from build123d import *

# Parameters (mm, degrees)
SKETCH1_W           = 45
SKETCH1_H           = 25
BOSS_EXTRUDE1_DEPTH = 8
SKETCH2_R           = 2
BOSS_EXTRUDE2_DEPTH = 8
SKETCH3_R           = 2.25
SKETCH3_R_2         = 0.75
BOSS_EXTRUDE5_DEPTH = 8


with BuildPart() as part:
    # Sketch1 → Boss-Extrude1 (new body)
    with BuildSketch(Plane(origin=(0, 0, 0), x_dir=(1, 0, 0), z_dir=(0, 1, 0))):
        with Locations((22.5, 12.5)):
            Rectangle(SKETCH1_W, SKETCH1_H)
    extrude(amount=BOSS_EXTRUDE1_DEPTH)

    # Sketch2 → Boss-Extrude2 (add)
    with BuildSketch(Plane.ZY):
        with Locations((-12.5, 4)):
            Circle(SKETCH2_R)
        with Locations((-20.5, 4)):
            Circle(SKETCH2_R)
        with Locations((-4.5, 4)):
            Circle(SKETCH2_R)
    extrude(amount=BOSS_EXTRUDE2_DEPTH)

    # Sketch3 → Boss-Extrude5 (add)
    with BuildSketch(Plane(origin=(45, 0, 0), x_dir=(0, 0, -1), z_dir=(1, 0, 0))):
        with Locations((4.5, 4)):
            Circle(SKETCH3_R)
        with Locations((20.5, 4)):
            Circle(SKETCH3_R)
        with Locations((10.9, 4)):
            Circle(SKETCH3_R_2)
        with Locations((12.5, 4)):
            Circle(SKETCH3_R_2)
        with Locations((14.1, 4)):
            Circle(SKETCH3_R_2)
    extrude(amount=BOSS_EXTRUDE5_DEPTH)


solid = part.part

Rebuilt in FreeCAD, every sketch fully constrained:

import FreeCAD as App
import Part
import Sketcher
from FreeCAD import Vector


def add_polygon(sketch, points):
    """Adds a closed chain of lines whose ends are joined by coincident constraints."""
    first, n = sketch.GeometryCount, len(points)
    for a, b in zip(points, points[1:] + points[:1]):
        sketch.addGeometry(Part.LineSegment(App.Vector(*a, 0), App.Vector(*b, 0)), False)
    for i in range(n):
        sketch.addConstraint(Sketcher.Constraint("Coincident", first + i, 2, first + (i + 1) % n, 1))

doc = App.newDocument("Part")
body = doc.addObject("PartDesign::Body", "Body")

# Sketch on XZ plane
sketch1 = body.newObject("Sketcher::SketchObject", "Sketch")
sketch1.AttachmentSupport = (doc.getObject("XZ_Plane"), [""])
sketch1.MapMode = "FlatFace"
add_polygon(sketch1, [(0, -25), (0, 0), (45, 0), (45, -25)])  # lines 0-3
sketch1.addConstraint(Sketcher.Constraint("Vertical", 0))
sketch1.addConstraint(Sketcher.Constraint("Horizontal", 1))
sketch1.addConstraint(Sketcher.Constraint("Vertical", 2))
sketch1.addConstraint(Sketcher.Constraint("Horizontal", 3))
sketch1.addConstraint(Sketcher.Constraint("Coincident", 0, 2, -1, 1))
sketch1.addConstraint(Sketcher.Constraint("DistanceX", 1, 1, 1, 2, 45.0))
sketch1.addConstraint(Sketcher.Constraint("DistanceY", 0, 1, 0, 2, 25.0))
pad1 = body.newObject("PartDesign::Pad", "Pad")
pad1.Profile = sketch1
pad1.Length = 8
pad1.Reversed = True

# Sketch on YZ plane
sketch2 = body.newObject("Sketcher::SketchObject", "Sketch001")
sketch2.AttachmentSupport = (doc.getObject("YZ_Plane"), [""])
sketch2.MapMode = "FlatFace"
sketch2.addGeometry(Part.Circle(Vector(4, -12.5, 0), Vector(0, 0, 1), 2), False)
sketch2.addGeometry(Part.Circle(Vector(4, -20.5, 0), Vector(0, 0, 1), 2), False)
sketch2.addGeometry(Part.Circle(Vector(4, -4.5, 0), Vector(0, 0, 1), 2), False)
sketch2.addConstraint(Sketcher.Constraint("Equal", 0, 1))
sketch2.addConstraint(Sketcher.Constraint("Equal", 1, 2))
sketch2.addConstraint(Sketcher.Constraint("Vertical", 0, 3, 1, 3))
sketch2.addConstraint(Sketcher.Constraint("Vertical", 1, 3, 2, 3))
sketch2.addConstraint(Sketcher.Constraint("Diameter", 0, 4.0))
sketch2.addConstraint(Sketcher.Constraint("DistanceX", -1, 1, 0, 3, 4.0))
sketch2.addConstraint(Sketcher.Constraint("DistanceY", 1, 3, 0, 3, 8.0))
sketch2.addConstraint(Sketcher.Constraint("DistanceY", 0, 3, 2, 3, 8.0))
sketch2.addConstraint(Sketcher.Constraint("DistanceY", 0, 3, -1, 1, 12.5))
pad2 = body.newObject("PartDesign::Pad", "Pad001")
pad2.Profile = sketch2
pad2.Length = 8
pad2.Reversed = True

# Sketch on YZ plane
sketch3 = body.newObject("Sketcher::SketchObject", "Sketch002")
sketch3.AttachmentSupport = (doc.getObject("YZ_Plane"), [""])
sketch3.MapMode = "FlatFace"
sketch3.AttachmentOffset = App.Placement(Vector(0, 0, 45), App.Rotation())
sketch3.addGeometry(Part.Circle(Vector(4, -4.5, 0), Vector(0, 0, 1), 2.25), False)
sketch3.addGeometry(Part.Circle(Vector(4, -20.5, 0), Vector(0, 0, 1), 2.25), False)
sketch3.addGeometry(Part.Circle(Vector(4, -10.9, 0), Vector(0, 0, 1), 0.75), False)
sketch3.addGeometry(Part.Circle(Vector(4, -12.5, 0), Vector(0, 0, 1), 0.75), False)
sketch3.addGeometry(Part.Circle(Vector(4, -14.1, 0), Vector(0, 0, 1), 0.75), False)
sketch3.addConstraint(Sketcher.Constraint("Equal", 0, 1))
sketch3.addConstraint(Sketcher.Constraint("Equal", 2, 3))
sketch3.addConstraint(Sketcher.Constraint("Equal", 3, 4))
sketch3.addConstraint(Sketcher.Constraint("Vertical", 0, 3, 1, 3))
sketch3.addConstraint(Sketcher.Constraint("Vertical", 1, 3, 2, 3))
sketch3.addConstraint(Sketcher.Constraint("Vertical", 2, 3, 3, 3))
sketch3.addConstraint(Sketcher.Constraint("Vertical", 3, 3, 4, 3))
sketch3.addConstraint(Sketcher.Constraint("Diameter", 0, 4.5))
sketch3.addConstraint(Sketcher.Constraint("Diameter", 2, 1.5))
sketch3.addConstraint(Sketcher.Constraint("DistanceX", -1, 1, 0, 3, 4.0))
sketch3.addConstraint(Sketcher.Constraint("DistanceY", 1, 3, 0, 3, 16.0))
sketch3.addConstraint(Sketcher.Constraint("DistanceY", 3, 3, 0, 3, 8.0))
sketch3.addConstraint(Sketcher.Constraint("DistanceY", 0, 3, -1, 1, 4.5))
sketch3.addConstraint(Sketcher.Constraint("DistanceY", 2, 3, -1, 1, 10.9))
sketch3.addConstraint(Sketcher.Constraint("DistanceY", 4, 3, -1, 1, 14.1))
pad3 = body.newObject("PartDesign::Pad", "Pad002")
pad3.Profile = sketch3
pad3.Length = 8

doc.recompute()
